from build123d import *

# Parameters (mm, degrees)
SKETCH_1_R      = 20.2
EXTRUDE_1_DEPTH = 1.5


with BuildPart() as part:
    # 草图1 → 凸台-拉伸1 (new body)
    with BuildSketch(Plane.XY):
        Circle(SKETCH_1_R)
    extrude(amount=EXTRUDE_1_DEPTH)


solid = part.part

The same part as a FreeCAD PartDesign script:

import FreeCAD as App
import Part
import Sketcher

doc = App.newDocument("Part")
body = doc.addObject("PartDesign::Body", "Body")

# Sketch on XY plane
sketch1 = body.newObject("Sketcher::SketchObject", "Sketch")
sketch1.AttachmentSupport = (doc.getObject("XY_Plane"), [""])
sketch1.MapMode = "FlatFace"
sketch1.addGeometry(Part.Circle(App.Vector(0, 0, 0), App.Vector(0, 0, 1), 20), False)
sketch1.addConstraint(Sketcher.Constraint("Coincident", 0, 3, -1, 1))
sketch1.addConstraint(Sketcher.Constraint("Diameter", 0, 40.4))
pad1 = body.newObject("PartDesign::Pad", "Pad")
pad1.Profile = sketch1
pad1.Length = 1.5

doc.recompute()
